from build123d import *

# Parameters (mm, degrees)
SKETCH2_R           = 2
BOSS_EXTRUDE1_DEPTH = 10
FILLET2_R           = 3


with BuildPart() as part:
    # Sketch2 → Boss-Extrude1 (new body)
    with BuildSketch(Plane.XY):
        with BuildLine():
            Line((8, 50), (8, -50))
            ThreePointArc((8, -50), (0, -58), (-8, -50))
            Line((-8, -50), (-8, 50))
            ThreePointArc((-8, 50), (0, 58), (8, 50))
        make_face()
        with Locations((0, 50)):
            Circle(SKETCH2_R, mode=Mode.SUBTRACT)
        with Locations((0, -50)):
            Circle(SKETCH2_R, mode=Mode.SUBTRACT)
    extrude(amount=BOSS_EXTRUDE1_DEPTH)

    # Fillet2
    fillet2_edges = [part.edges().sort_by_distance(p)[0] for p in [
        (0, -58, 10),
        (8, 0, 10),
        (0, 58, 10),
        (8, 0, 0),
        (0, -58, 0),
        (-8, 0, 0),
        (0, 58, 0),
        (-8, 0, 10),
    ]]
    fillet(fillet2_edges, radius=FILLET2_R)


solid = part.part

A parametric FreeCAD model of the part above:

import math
import FreeCAD as App
import Part
import Sketcher

V = App.Vector
Q = App.Units.Quantity


def edges_at(feature, points):
    """Names of the edges that pass closest to the given points."""
    edges = feature.Shape.Edges
    near = lambda p: min(range(len(edges)), key=lambda i: edges[i].distToShape(Part.Vertex(*p))[0])
    return sorted({f"Edge{near(p) + 1}" for p in points})

doc = App.newDocument("Part")
body = doc.addObject("PartDesign::Body", "Body")

# Sketch on XY plane
sketch1 = doc.addObject("Sketcher::SketchObject", "Sketch")
body.addObject(sketch1)
sketch1.AttachmentSupport = (doc.XY_Plane, [""])
sketch1.MapMode = "FlatFace"
sketch1.addGeometry([
    Part.LineSegment(V(8, -50, 0), V(8, 50, 0)),  # 0
    Part.ArcOfCircle(Part.Circle(V(0, 50, 0), V(0, 0, 1), 8), math.radians(0), math.radians(180)),  # 1
    Part.LineSegment(V(-8, 50, 0), V(-8, -50, 0)),  # 2
    Part.ArcOfCircle(Part.Circle(V(0, -50, 0), V(0, 0, 1), 8), math.radians(180), math.radians(360)),  # 3
    Part.Circle(V(0, -50, 0), V(0, 0, 1), 2),  # 4
    Part.Circle(V(0, 50, 0), V(0, 0, 1), 2),  # 5
], False)
sketch1.addConstraint([
    Sketcher.Constraint("Tangent", 0, 2, 1, 1),
    Sketcher.Constraint("Tangent", 1, 2, 2, 1),
    Sketcher.Constraint("Tangent", 2, 2, 3, 1),
    Sketcher.Constraint("Tangent", 3, 2, 0, 1),
    Sketcher.Constraint("Vertical", 0),
    Sketcher.Constraint("Vertical", 2),
    Sketcher.Constraint("Coincident", 4, 3, 3, 3),
    Sketcher.Constraint("Coincident", 5, 3, 1, 3),
    Sketcher.Constraint("Equal", 4, 5),
    Sketcher.Constraint("Symmetric", 1, 3, 3, 3, -1, 1),
    Sketcher.Constraint("Diameter", 4, Q("4 mm")),
    Sketcher.Constraint("Radius", 1, Q("8 mm")),
    Sketcher.Constraint("DistanceY", 0, 1, 0, 2, Q("100 mm")),
])
pad1 = doc.addObject("PartDesign::Pad", "Pad")
body.addObject(pad1)
pad1.Profile = sketch1
pad1.Length = 10
doc.recompute()

fillet = doc.addObject("PartDesign::Fillet", "Fillet")
body.addObject(fillet)
fillet.Base = (pad1, edges_at(pad1, [
    (0, -58, 10),
    (8, 0, 10),
    (0, 58, 10),
    (8, 0, 0),
    (0, -58, 0),
    (-8, 0, 0),
    (0, 58, 0),
    (-8, 0, 10),
]))
fillet.Radius = 3

doc.recompute()
